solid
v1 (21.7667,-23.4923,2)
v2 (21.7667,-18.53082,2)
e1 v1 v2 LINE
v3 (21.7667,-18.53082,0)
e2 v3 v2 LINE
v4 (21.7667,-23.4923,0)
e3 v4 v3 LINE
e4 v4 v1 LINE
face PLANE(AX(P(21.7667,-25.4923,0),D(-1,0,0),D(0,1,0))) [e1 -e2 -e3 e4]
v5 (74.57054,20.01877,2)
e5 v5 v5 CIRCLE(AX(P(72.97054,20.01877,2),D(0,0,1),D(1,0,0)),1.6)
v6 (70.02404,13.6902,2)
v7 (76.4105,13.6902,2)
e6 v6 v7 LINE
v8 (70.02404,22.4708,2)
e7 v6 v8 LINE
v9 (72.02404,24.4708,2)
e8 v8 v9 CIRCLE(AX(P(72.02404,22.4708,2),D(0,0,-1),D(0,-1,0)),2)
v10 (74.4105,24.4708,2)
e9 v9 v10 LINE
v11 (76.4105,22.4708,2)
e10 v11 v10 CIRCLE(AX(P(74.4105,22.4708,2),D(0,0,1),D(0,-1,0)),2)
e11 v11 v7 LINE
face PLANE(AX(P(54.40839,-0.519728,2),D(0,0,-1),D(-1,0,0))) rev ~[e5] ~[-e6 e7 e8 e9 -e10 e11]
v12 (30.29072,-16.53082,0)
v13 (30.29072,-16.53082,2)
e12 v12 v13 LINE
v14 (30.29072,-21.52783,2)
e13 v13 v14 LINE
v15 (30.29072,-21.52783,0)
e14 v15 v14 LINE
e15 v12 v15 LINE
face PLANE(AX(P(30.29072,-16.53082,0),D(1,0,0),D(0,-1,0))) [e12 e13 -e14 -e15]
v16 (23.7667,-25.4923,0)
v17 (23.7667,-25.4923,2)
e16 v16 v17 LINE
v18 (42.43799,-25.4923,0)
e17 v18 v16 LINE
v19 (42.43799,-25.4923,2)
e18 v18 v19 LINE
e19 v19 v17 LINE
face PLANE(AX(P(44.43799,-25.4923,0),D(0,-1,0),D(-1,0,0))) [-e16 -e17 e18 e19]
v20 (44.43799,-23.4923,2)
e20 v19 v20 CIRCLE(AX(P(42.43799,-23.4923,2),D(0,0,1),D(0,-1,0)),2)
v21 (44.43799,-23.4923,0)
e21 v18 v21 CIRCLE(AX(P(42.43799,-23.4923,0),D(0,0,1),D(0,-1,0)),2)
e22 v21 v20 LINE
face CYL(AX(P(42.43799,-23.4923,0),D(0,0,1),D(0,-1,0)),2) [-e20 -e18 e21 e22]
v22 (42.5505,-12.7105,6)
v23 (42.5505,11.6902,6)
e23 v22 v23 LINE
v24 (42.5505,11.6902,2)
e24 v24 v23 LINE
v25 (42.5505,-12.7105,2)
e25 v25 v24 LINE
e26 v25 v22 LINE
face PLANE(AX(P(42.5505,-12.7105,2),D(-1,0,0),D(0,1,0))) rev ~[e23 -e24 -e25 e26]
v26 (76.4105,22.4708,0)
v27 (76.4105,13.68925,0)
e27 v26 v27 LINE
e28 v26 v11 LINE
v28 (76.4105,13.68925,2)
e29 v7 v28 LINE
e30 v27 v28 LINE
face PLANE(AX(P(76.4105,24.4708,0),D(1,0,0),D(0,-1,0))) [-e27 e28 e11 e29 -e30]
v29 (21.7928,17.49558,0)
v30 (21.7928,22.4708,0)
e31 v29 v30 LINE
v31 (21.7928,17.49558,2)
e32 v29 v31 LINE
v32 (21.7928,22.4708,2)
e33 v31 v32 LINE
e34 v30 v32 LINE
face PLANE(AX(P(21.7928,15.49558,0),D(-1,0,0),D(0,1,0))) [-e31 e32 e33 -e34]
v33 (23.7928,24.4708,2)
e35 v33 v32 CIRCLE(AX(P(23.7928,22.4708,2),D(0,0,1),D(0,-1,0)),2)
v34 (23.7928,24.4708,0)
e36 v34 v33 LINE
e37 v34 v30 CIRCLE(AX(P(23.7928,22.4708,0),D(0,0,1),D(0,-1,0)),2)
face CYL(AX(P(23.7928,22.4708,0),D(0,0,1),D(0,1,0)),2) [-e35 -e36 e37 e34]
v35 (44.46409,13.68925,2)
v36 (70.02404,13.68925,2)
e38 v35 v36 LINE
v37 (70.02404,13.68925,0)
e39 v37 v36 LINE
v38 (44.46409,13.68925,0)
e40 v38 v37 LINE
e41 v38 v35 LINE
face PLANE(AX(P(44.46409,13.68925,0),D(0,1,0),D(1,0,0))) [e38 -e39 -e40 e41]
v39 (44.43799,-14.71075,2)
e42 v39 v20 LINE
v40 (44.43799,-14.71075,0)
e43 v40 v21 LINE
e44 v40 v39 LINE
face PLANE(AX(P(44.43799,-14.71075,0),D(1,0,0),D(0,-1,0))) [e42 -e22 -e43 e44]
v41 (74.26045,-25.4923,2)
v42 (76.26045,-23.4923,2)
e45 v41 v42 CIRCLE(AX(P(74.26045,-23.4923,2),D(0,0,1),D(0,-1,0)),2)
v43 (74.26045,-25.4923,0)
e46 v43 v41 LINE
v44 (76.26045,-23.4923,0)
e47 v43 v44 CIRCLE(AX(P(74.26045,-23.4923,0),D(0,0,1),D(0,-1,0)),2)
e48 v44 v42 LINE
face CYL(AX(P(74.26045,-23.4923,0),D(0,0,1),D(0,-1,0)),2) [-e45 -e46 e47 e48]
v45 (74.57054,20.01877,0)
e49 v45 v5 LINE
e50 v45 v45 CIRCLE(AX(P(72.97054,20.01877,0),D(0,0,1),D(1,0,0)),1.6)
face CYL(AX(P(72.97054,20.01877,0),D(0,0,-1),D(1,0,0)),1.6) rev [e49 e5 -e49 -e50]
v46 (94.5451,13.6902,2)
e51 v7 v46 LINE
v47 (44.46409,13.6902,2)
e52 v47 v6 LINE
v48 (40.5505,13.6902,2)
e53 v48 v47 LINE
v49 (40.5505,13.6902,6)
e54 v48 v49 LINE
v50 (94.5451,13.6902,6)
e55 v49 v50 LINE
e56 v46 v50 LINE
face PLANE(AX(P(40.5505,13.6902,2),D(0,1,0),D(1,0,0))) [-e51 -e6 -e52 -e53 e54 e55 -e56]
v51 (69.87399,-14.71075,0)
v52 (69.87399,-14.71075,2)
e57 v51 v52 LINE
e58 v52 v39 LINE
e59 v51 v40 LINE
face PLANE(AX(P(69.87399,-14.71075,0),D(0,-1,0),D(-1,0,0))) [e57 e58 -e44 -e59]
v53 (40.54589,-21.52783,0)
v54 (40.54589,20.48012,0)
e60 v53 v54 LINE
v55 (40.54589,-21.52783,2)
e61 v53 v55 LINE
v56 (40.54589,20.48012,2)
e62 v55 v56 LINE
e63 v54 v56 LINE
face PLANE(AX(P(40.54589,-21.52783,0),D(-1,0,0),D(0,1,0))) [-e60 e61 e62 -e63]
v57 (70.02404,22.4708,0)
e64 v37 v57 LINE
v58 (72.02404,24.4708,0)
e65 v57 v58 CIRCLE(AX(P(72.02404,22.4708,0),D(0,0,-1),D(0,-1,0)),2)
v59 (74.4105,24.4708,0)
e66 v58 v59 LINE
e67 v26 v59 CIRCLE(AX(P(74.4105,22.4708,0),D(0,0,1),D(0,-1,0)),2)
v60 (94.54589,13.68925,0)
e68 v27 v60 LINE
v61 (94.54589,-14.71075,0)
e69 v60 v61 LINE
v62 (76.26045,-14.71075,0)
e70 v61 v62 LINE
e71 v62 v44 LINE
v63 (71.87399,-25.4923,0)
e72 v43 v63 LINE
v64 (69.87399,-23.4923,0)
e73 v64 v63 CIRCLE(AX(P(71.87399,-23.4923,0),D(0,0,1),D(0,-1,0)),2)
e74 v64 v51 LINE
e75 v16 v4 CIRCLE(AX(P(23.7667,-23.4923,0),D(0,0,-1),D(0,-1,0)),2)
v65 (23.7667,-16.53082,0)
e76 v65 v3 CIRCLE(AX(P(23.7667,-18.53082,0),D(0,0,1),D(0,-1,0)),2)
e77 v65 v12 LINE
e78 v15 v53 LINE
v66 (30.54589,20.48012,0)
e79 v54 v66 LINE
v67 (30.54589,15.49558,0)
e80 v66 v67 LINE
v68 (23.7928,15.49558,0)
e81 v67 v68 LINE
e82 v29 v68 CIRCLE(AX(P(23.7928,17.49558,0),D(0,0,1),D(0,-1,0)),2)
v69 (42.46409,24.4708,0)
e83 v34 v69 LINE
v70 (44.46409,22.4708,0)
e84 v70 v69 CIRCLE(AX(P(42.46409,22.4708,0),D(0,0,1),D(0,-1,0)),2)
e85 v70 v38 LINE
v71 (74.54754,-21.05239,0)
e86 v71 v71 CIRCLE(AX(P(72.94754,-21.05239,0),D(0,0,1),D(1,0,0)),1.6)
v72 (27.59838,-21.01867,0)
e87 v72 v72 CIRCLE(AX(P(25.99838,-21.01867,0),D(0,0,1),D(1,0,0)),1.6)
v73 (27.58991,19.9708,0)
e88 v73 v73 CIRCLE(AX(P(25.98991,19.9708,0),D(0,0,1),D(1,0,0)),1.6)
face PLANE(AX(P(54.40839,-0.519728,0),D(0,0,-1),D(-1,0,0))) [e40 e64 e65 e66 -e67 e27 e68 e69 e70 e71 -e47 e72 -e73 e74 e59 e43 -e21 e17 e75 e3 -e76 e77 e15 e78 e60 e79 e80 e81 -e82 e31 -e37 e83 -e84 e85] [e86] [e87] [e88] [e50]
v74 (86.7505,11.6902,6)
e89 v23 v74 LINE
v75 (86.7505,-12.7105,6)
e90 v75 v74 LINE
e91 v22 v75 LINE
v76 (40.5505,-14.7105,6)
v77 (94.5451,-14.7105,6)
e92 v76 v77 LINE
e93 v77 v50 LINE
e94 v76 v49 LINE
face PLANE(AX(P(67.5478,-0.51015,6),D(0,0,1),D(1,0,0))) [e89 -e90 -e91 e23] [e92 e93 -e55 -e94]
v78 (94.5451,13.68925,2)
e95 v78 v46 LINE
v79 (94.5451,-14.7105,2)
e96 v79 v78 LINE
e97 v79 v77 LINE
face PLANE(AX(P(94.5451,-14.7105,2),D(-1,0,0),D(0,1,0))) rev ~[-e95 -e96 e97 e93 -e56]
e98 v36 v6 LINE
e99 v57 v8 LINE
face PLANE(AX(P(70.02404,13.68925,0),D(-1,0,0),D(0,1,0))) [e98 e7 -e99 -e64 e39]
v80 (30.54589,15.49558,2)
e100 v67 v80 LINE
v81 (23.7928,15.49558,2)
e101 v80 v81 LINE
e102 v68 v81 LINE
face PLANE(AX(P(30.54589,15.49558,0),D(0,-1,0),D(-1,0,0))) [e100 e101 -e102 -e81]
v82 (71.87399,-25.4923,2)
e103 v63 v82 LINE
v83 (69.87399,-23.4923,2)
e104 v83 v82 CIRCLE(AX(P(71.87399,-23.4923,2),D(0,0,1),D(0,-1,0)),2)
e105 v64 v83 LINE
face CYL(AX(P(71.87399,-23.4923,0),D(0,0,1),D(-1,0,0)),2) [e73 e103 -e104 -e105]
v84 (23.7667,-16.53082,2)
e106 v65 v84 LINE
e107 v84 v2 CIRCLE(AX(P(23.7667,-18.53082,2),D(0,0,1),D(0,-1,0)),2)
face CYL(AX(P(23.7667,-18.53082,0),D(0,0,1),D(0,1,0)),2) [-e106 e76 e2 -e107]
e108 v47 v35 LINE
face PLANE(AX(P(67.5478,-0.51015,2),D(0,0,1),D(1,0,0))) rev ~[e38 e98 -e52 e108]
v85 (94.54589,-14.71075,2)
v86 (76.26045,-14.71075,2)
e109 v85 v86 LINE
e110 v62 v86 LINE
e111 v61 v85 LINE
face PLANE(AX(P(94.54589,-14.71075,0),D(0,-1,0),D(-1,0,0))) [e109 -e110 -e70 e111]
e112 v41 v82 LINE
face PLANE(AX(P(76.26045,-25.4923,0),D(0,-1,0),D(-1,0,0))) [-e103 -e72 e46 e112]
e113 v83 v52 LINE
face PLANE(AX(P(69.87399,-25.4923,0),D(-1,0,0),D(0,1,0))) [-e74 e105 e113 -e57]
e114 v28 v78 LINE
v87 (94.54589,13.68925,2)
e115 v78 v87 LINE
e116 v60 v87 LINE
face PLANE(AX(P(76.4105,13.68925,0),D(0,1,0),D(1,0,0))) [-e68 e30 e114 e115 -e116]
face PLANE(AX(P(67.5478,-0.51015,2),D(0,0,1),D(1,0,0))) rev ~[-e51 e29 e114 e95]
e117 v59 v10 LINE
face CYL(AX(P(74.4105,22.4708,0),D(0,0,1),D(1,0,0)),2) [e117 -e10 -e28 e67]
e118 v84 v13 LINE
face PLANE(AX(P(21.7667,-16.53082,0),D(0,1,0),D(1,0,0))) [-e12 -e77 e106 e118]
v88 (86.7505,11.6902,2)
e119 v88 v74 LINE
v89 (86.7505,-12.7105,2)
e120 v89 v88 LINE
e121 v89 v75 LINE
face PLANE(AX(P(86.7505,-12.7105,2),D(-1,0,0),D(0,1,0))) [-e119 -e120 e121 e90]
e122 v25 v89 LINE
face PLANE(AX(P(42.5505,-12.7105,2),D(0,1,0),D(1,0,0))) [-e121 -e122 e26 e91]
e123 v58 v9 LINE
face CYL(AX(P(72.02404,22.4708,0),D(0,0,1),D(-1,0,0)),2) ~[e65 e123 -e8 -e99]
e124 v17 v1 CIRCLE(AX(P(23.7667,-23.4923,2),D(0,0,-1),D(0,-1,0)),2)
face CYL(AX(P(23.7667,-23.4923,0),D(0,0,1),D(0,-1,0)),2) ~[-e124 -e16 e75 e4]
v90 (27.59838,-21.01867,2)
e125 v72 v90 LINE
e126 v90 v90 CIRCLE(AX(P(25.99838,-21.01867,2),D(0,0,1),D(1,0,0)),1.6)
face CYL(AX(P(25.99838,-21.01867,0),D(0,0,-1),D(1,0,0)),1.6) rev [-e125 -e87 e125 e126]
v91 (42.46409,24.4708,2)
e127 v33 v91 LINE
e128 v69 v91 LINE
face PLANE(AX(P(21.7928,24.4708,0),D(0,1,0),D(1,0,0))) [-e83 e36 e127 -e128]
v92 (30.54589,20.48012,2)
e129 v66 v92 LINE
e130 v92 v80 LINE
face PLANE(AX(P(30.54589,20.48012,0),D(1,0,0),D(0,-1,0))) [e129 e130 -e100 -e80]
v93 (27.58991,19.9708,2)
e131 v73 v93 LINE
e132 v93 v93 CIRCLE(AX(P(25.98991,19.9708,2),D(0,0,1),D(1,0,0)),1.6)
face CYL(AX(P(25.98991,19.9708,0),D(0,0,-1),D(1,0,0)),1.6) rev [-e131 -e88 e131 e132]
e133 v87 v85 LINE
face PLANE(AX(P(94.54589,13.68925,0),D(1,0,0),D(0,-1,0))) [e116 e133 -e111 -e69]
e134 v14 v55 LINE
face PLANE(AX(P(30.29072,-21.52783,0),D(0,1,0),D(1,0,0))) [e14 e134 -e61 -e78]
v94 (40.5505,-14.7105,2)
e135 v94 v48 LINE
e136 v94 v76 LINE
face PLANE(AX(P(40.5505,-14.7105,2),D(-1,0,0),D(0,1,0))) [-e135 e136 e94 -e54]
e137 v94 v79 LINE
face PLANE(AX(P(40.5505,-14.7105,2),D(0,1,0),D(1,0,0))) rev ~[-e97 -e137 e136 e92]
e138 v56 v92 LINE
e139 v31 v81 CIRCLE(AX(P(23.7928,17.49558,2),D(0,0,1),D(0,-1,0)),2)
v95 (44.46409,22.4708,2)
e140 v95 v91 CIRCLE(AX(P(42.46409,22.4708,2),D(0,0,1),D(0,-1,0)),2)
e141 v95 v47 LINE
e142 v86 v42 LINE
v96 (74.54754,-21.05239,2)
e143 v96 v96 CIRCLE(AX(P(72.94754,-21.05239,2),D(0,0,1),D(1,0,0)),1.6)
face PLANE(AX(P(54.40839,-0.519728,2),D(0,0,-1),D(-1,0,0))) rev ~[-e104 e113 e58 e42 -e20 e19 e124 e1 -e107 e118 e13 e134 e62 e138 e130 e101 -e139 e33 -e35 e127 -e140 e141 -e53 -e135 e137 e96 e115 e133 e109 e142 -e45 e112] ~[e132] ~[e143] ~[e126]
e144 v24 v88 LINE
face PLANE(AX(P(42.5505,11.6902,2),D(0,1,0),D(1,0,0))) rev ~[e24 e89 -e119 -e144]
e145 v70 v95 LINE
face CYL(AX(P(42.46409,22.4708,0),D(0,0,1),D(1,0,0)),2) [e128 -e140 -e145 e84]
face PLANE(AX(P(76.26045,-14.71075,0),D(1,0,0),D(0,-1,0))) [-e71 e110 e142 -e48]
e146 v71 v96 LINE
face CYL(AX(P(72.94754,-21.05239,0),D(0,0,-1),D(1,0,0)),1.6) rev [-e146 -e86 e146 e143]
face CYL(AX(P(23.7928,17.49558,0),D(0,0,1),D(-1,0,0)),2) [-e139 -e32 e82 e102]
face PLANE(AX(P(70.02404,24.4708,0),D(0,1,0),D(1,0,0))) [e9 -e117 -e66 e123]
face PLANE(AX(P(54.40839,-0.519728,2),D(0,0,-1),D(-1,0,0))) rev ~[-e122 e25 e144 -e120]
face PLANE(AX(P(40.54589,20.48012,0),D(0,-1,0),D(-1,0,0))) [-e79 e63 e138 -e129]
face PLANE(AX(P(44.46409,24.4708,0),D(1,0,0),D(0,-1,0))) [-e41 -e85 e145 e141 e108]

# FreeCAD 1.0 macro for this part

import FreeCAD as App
import Part
import Sketcher

V = App.Vector
Q = App.Units.Quantity


def edges_at(feature, points):
    """Names of the edges that pass closest to the given points."""
    edges = feature.Shape.Edges
    near = lambda p: min(range(len(edges)), key=lambda i: edges[i].distToShape(Part.Vertex(*p))[0])
    return sorted({f"Edge{near(p) + 1}" for p in points})


def add_polygon(sketch, points):
    """Adds a closed chain of lines whose ends are joined by coincident constraints."""
    first, n = sketch.GeometryCount, len(points)
    for a, b in zip(points, points[1:] + points[:1]):
        sketch.addGeometry(Part.LineSegment(App.Vector(*a, 0), App.Vector(*b, 0)), False)
    for i in range(n):
        sketch.addConstraint(Sketcher.Constraint("Coincident", first + i, 2, first + (i + 1) % n, 1))

doc = App.newDocument("Part")
body = doc.addObject("PartDesign::Body", "Body")

# Sketch on XY plane
sketch1 = body.newObject("Sketcher::SketchObject", "Sketch")
sketch1.AttachmentSupport = (doc.getObject("XY_Plane"), [""])
sketch1.MapMode = "FlatFace"
add_polygon(sketch1, [(21.7667, -16.53082), (21.7667, -25.4923), (44.43799, -25.4923), (44.43799, -14.71075), (69.87399, -14.71075), (69.87399, -25.4923), (76.26045, -25.4923), (76.26045, -14.71075), (94.54589, -14.71075), (94.54589, 13.68925), (76.4105, 13.68925), (76.4105, 24.4708), (70.02404, 24.4708), (70.02404, 13.68925), (44.46409, 13.68925), (44.46409, 24.4708), (21.7928, 24.4708), (21.7928, 15.49558), (30.54589, 15.49558), (30.54589, 20.48012), (40.54589, 20.48012), (40.54589, -21.52783), (30.29072, -21.52783), (30.29072, -16.53082)])  # lines 0-23
sketch1.addGeometry(Part.Circle(V(72.94754, -21.05239, 0), V(0, 0, 1), 1.6), False)  # 24
sketch1.addGeometry(Part.Circle(V(25.99838, -21.01867, 0), V(0, 0, 1), 1.6), False)  # 25
sketch1.addGeometry(Part.Circle(V(72.97054, 20.01877, 0), V(0, 0, 1), 1.6), False)  # 26
sketch1.addGeometry(Part.Circle(V(25.98991, 19.9708, 0), V(0, 0, 1), 1.6), False)  # 27
sketch1.addConstraint(Sketcher.Constraint("Vertical", 0))
sketch1.addConstraint(Sketcher.Constraint("Horizontal", 1))
sketch1.addConstraint(Sketcher.Constraint("Vertical", 2))
sketch1.addConstraint(Sketcher.Constraint("Horizontal", 3))
sketch1.addConstraint(Sketcher.Constraint("Vertical", 4))
sketch1.addConstraint(Sketcher.Constraint("Horizontal", 5))
sketch1.addConstraint(Sketcher.Constraint("Vertical", 6))
sketch1.addConstraint(Sketcher.Constraint("Horizontal", 7))
sketch1.addConstraint(Sketcher.Constraint("Vertical", 8))
sketch1.addConstraint(Sketcher.Constraint("Horizontal", 9))
sketch1.addConstraint(Sketcher.Constraint("Vertical", 10))
sketch1.addConstraint(Sketcher.Constraint("Horizontal", 11))
sketch1.addConstraint(Sketcher.Constraint("Vertical", 12))
sketch1.addConstraint(Sketcher.Constraint("Horizontal", 13))
sketch1.addConstraint(Sketcher.Constraint("Vertical", 14))
sketch1.addConstraint(Sketcher.Constraint("Horizontal", 15))
sketch1.addConstraint(Sketcher.Constraint("Vertical", 16))
sketch1.addConstraint(Sketcher.Constraint("Horizontal", 17))
sketch1.addConstraint(Sketcher.Constraint("Vertical", 18))
sketch1.addConstraint(Sketcher.Constraint("Horizontal", 19))
sketch1.addConstraint(Sketcher.Constraint("Vertical", 20))
sketch1.addConstraint(Sketcher.Constraint("Horizontal", 21))
sketch1.addConstraint(Sketcher.Constraint("Vertical", 22))
sketch1.addConstraint(Sketcher.Constraint("Horizontal", 23))
sketch1.addConstraint(Sketcher.Constraint("Equal", 24, 25))
sketch1.addConstraint(Sketcher.Constraint("Equal", 25, 26))
sketch1.addConstraint(Sketcher.Constraint("Equal", 26, 27))
sketch1.addConstraint(Sketcher.Constraint("Horizontal", 1, 2, 4, 2))
sketch1.addConstraint(Sketcher.Constraint("Horizontal", 3, 2, 6, 2))
sketch1.addConstraint(Sketcher.Constraint("Horizontal", 9, 2, 12, 2))
sketch1.addConstraint(Sketcher.Constraint("Horizontal", 11, 2, 14, 2))
sketch1.addConstraint(Sketcher.Constraint("Equal", 5, 11))
sketch1.addConstraint(Sketcher.Constraint("Equal", 1, 15))
sketch1.addConstraint(Sketcher.Constraint("Equal", 6, 10))
sketch1.addConstraint(Sketcher.Constraint("Diameter", 24, Q("3.2 mm")))
sketch1.addConstraint(Sketcher.Constraint("DistanceX", 19, 1, 19, 2, Q("10 mm")))
sketch1.addConstraint(Sketcher.Constraint("DistanceY", 8, 1, 8, 2, Q("28.4 mm")))
sketch1.addConstraint(Sketcher.Constraint("DistanceY", 27, 3, 14, 2, Q("4.5 mm")))
sketch1.addConstraint(Sketcher.Constraint("DistanceX", 3, 1, 3, 2, Q("25.436 mm")))
sketch1.addConstraint(Sketcher.Constraint("DistanceX", 24, 3, 26, 3, Q("0.023 mm")))
sketch1.addConstraint(Sketcher.Constraint("DistanceX", 1, 1, 1, 2, Q("22.67129 mm")))
sketch1.addConstraint(Sketcher.Constraint("DistanceX", 5, 1, 5, 2, Q("6.38646 mm")))
sketch1.addConstraint(Sketcher.Constraint("DistanceX", 7, 1, 7, 2, Q("18.28544 mm")))
sketch1.addConstraint(Sketcher.Constraint("DistanceX", 9, 2, 9, 1, Q("18.13539 mm")))
sketch1.addConstraint(Sketcher.Constraint("DistanceX", 13, 2, 13, 1, Q("25.55995 mm")))
sketch1.addConstraint(Sketcher.Constraint("DistanceX", 17, 1, 17, 2, Q("8.75309 mm")))
sketch1.addConstraint(Sketcher.Constraint("DistanceX", 21, 2, 21, 1, Q("10.25517 mm")))
sketch1.addConstraint(Sketcher.Constraint("DistanceY", 0, 2, 0, 1, Q("8.96148 mm")))
sketch1.addConstraint(Sketcher.Constraint("DistanceY", 2, 1, 2, 2, Q("10.78155 mm")))
sketch1.addConstraint(Sketcher.Constraint("DistanceY", 16, 2, 16, 1, Q("8.97522 mm")))
sketch1.addConstraint(Sketcher.Constraint("DistanceY", 18, 1, 18, 2, Q("4.98454 mm")))
sketch1.addConstraint(Sketcher.Constraint("DistanceY", 20, 2, 20, 1, Q("42.00795 mm")))
sketch1.addConstraint(Sketcher.Constraint("DistanceY", -1, 1, 27, 3, Q("19.9708 mm")))
sketch1.addConstraint(Sketcher.Constraint("DistanceX", -1, 1, 0, 2, Q("21.7667 mm")))
sketch1.addConstraint(Sketcher.Constraint("DistanceX", 11, 2, 26, 3, Q("2.9465 mm")))
sketch1.addConstraint(Sketcher.Constraint("DistanceY", 24, 3, -1, 1, Q("21.05239 mm")))
sketch1.addConstraint(Sketcher.Constraint("DistanceX", -1, 1, 25, 3, Q("25.99838 mm")))
sketch1.addConstraint(Sketcher.Constraint("DistanceY", 25, 3, -1, 1, Q("21.01867 mm")))
sketch1.addConstraint(Sketcher.Constraint("DistanceY", -1, 1, 26, 3, Q("20.01877 mm")))
sketch1.addConstraint(Sketcher.Constraint("DistanceX", -1, 1, 27, 3, Q("25.98991 mm")))
pad1 = body.newObject("PartDesign::Pad", "Pad")
pad1.Profile = sketch1
pad1.Length = 2

# Sketch on XY plane
sketch2 = body.newObject("Sketcher::SketchObject", "Sketch001")
sketch2.AttachmentSupport = (doc.getObject("XY_Plane"), [""])
sketch2.MapMode = "FlatFace"
sketch2.AttachmentOffset = App.Placement(V(0, 0, 2), App.Rotation())
add_polygon(sketch2, [(40.5505, 13.6902), (40.5505, -14.7105), (94.5451, -14.7105), (94.5451, 13.6902)])  # lines 0-3
add_polygon(sketch2, [(86.7505, -12.7105), (42.5505, -12.7105), (42.5505, 11.6902), (86.7505, 11.6902)])  # lines 4-7
sketch2.addConstraint(Sketcher.Constraint("Vertical", 0))
sketch2.addConstraint(Sketcher.Constraint("Horizontal", 1))
sketch2.addConstraint(Sketcher.Constraint("Vertical", 2))
sketch2.addConstraint(Sketcher.Constraint("Horizontal", 3))
sketch2.addConstraint(Sketcher.Constraint("Horizontal", 4))
sketch2.addConstraint(Sketcher.Constraint("Vertical", 5))
sketch2.addConstraint(Sketcher.Constraint("Horizontal", 6))
sketch2.addConstraint(Sketcher.Constraint("Vertical", 7))
sketch2.addConstraint(Sketcher.Constraint("DistanceX", 4, 2, 4, 1, Q("44.2 mm")))
sketch2.addConstraint(Sketcher.Constraint("DistanceX", 0, 2, 4, 2, Q("2 mm")))
sketch2.addConstraint(Sketcher.Constraint("DistanceY", 0, 2, 4, 2, Q("2 mm")))
sketch2.addConstraint(Sketcher.Constraint("DistanceY", 5, 2, 3, 2, Q("2 mm")))
sketch2.addConstraint(Sketcher.Constraint("DistanceX", 1, 1, 1, 2, Q("53.9946 mm")))
sketch2.addConstraint(Sketcher.Constraint("DistanceY", 0, 2, 0, 1, Q("28.4007 mm")))
sketch2.addConstraint(Sketcher.Constraint("DistanceX", -1, 1, 0, 2, Q("40.5505 mm")))
sketch2.addConstraint(Sketcher.Constraint("DistanceY", 0, 2, -1, 1, Q("14.7105 mm")))
pad2 = body.newObject("PartDesign::Pad", "Pad001")
pad2.Profile = sketch2
pad2.Length = 4
doc.recompute()

fillet = body.newObject("PartDesign::Fillet", "Fillet")
fillet.Base = (pad2, edges_at(pad2, [
    (21.767, -16.531, 1),
    (21.767, -25.492, 1),
    (44.438, -25.492, 1),
    (69.874, -25.492, 1),
    (76.26, -25.492, 1),
    (76.41, 24.471, 1),
    (70.024, 24.471, 1),
    (44.464, 24.471, 1),
    (21.793, 24.471, 1),
    (21.793, 15.496, 1),
]))
fillet.Radius = 2

doc.recompute()
